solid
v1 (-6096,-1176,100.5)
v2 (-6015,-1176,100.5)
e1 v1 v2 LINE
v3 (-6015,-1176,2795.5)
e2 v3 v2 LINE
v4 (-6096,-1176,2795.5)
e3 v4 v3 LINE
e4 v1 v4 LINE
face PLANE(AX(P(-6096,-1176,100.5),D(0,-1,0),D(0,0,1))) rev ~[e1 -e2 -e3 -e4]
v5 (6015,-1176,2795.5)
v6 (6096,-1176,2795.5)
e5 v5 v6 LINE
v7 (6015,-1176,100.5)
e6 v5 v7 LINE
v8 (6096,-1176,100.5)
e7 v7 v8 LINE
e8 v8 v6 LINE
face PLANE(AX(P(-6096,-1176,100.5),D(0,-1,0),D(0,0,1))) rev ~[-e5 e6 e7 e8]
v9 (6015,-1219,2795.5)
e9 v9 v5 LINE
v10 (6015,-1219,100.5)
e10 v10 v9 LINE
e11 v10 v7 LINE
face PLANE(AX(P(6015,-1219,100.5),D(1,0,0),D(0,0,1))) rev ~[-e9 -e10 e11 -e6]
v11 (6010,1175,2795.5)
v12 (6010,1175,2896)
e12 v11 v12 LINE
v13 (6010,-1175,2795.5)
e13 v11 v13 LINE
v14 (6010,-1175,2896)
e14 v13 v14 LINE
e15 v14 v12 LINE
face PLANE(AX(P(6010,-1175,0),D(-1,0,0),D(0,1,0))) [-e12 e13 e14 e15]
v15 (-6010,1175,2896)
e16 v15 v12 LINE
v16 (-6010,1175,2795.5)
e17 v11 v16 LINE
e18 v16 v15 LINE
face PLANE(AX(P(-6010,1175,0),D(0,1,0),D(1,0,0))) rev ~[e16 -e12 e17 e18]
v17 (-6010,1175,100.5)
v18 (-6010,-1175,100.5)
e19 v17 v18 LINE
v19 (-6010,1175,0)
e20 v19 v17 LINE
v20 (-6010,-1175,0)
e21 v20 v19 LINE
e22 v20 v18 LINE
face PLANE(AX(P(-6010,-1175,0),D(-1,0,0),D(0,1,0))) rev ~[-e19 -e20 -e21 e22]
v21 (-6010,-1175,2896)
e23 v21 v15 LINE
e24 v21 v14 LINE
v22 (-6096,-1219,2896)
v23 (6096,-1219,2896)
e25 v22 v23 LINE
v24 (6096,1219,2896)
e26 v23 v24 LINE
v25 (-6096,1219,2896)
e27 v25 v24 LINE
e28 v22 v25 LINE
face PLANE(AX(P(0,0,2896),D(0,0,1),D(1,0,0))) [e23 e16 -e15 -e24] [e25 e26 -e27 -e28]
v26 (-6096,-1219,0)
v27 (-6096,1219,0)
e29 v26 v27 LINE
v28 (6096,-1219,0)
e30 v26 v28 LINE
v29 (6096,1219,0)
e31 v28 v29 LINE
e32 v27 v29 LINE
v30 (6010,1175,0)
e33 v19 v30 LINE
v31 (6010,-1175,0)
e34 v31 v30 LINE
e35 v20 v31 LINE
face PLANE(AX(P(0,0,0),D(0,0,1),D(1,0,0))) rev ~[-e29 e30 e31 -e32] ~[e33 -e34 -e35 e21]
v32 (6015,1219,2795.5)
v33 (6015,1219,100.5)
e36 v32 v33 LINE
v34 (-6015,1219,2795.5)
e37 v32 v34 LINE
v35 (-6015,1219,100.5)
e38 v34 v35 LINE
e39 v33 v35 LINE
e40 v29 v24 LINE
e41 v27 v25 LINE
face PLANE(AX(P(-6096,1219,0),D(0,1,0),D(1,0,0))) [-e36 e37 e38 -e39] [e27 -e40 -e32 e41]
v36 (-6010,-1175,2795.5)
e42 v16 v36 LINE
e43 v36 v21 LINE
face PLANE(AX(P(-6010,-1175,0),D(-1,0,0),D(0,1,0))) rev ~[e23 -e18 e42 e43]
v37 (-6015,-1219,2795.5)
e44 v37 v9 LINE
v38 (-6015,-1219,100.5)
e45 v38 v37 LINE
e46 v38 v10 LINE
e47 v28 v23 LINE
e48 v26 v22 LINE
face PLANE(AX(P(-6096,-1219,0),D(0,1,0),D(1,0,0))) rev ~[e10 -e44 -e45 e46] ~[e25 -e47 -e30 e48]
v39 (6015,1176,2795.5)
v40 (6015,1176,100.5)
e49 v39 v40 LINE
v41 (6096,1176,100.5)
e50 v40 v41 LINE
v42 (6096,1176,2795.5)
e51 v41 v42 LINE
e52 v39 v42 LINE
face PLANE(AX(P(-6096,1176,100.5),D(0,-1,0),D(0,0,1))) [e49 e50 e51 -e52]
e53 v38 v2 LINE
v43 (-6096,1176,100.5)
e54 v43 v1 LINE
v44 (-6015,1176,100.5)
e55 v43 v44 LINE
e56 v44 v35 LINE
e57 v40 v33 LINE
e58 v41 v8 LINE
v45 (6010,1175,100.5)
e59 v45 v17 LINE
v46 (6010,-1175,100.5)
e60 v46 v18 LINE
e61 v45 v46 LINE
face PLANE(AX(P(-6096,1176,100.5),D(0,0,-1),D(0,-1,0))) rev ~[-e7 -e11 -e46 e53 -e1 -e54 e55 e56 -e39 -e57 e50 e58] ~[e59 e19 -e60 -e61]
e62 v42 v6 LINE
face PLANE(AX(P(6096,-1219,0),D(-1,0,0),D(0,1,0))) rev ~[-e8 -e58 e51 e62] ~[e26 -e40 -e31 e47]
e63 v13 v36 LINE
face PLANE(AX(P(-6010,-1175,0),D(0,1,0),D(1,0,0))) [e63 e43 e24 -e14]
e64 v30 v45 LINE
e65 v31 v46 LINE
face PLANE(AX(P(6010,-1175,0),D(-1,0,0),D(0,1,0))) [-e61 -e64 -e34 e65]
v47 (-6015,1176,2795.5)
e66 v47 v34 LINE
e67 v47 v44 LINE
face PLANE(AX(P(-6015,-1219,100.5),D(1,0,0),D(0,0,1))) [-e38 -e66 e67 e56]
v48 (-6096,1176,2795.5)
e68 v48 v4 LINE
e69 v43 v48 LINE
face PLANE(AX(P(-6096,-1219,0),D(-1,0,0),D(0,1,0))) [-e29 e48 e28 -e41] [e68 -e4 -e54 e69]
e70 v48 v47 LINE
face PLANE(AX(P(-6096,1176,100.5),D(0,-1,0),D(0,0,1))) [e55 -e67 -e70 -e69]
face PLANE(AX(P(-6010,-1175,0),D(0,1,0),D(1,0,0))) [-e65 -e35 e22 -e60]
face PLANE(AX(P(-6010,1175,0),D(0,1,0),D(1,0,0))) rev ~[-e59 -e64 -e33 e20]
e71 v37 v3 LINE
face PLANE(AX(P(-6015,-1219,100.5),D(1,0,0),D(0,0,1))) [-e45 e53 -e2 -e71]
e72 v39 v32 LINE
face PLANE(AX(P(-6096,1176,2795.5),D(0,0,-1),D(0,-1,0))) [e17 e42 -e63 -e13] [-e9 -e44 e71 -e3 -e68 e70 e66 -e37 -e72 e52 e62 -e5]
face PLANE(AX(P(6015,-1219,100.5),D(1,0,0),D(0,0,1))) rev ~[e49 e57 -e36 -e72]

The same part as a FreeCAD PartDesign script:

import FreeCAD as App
import Part
import Sketcher
Q = App.Units.Quantity


def add_polygon(sketch, points):
    """Adds a closed chain of lines whose ends are joined by coincident constraints."""
    first, n = sketch.GeometryCount, len(points)
    for a, b in zip(points, points[1:] + points[:1]):
        sketch.addGeometry(Part.LineSegment(App.Vector(*a, 0), App.Vector(*b, 0)), False)
    for i in range(n):
        sketch.addConstraint(Sketcher.Constraint("Coincident", first + i, 2, first + (i + 1) % n, 1))

doc = App.newDocument("Part")
body = doc.addObject("PartDesign::Body", "Body")

sketch1 = body.newObject("Sketcher::SketchObject", "Sketch")
sketch1.AttachmentSupport = (doc.getObject("XY_Plane"), [""])
sketch1.MapMode = "FlatFace"
add_polygon(sketch1, [(-6096, 1219), (-6096, -1219), (6096, -1219), (6096, 1219)])
add_polygon(sketch1, [(6010, -1175), (-6010, -1175), (-6010, 1175), (6010, 1175)])
sketch1.addConstraint([
    Sketcher.Constraint("Vertical", 0),
    Sketcher.Constraint("Horizontal", 1),
    Sketcher.Constraint("Vertical", 2),
    Sketcher.Constraint("Horizontal", 3),
    Sketcher.Constraint("Horizontal", 4),
    Sketcher.Constraint("Vertical", 5),
    Sketcher.Constraint("Horizontal", 6),
    Sketcher.Constraint("Vertical", 7),
    Sketcher.Constraint("Symmetric", 0, 2, 2, 2, -1, 1),
    Sketcher.Constraint("Symmetric", 4, 2, 6, 2, -1, 1),
    Sketcher.Constraint("DistanceX", 1, 1, 1, 2, Q("12192 mm")),
    Sketcher.Constraint("DistanceX", 4, 2, 4, 1, Q("12020 mm")),
    Sketcher.Constraint("DistanceY", 0, 2, 0, 1, Q("2438 mm")),
    Sketcher.Constraint("DistanceY", 5, 1, 5, 2, Q("2350 mm")),
])
pad1 = body.newObject("PartDesign::Pad", "Pad")
pad1.Profile = sketch1
pad1.Length = 2896

sketch2 = body.newObject("Sketcher::SketchObject", "Sketch001")
sketch2.AttachmentSupport = (doc.getObject("XZ_Plane"), [""])
sketch2.MapMode = "FlatFace"
sketch2.AttachmentOffset = App.Placement(App.Vector(0, 0, 1219), App.Rotation())
add_polygon(sketch2, [(-6015, 2796), (-6015, 100), (6015, 100), (6015, 2796)])
sketch2.addConstraint([
    Sketcher.Constraint("Vertical", 0),
    Sketcher.Constraint("Horizontal", 1),
    Sketcher.Constraint("Vertical", 2),
    Sketcher.Constraint("Horizontal", 3),
    Sketcher.Constraint("DistanceX", 1, 1, 1, 2, Q("12030 mm")),
    Sketcher.Constraint("DistanceY", 0, 2, 0, 1, Q("2695 mm")),
    Sketcher.Constraint("DistanceX", 0, 2, -1, 1, Q("6015 mm")),
    Sketcher.Constraint("DistanceY", -1, 1, 0, 2, Q("100.5 mm")),
])
pocket1 = body.newObject("PartDesign::Pocket", "Pocket")
pocket1.Profile = sketch2
pocket1.Type = "ThroughAll"

sketch3 = body.newObject("Sketcher::SketchObject", "Sketch002")
sketch3.AttachmentSupport = (doc.getObject("YZ_Plane"), [""])
sketch3.MapMode = "FlatFace"
sketch3.AttachmentOffset = App.Placement(App.Vector(0, 0, -6096), App.Rotation())
add_polygon(sketch3, [(1176, 2796), (1176, 100), (-1176, 100), (-1176, 2796)])
sketch3.addConstraint([
    Sketcher.Constraint("Vertical", 0),
    Sketcher.Constraint("Horizontal", 1),
    Sketcher.Constraint("Vertical", 2),
    Sketcher.Constraint("Horizontal", 3),
    Sketcher.Constraint("DistanceX", 1, 2, 1, 1, Q("2352 mm")),
    Sketcher.Constraint("DistanceY", 0, 2, 0, 1, Q("2695 mm")),
    Sketcher.Constraint("DistanceX", -1, 1, 0, 2, Q("1176 mm")),
    Sketcher.Constraint("DistanceY", -1, 1, 0, 2, Q("100.5 mm")),
])
pocket2 = body.newObject("PartDesign::Pocket", "Pocket001")
pocket2.Profile = sketch3
pocket2.Type = "ThroughAll"
pocket2.Reversed = True

doc.recompute()
